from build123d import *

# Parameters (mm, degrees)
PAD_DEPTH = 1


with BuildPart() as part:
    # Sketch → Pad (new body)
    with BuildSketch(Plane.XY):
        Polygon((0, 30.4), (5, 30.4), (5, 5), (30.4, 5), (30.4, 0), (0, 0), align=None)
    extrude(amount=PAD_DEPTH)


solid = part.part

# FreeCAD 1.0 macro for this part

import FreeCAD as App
import Part
import Sketcher

V = App.Vector


def add_polygon(sketch, points):
    """Adds a closed chain of lines whose ends are joined by coincident constraints."""
    first, n = sketch.GeometryCount, len(points)
    for a, b in zip(points, points[1:] + points[:1]):
        sketch.addGeometry(Part.LineSegment(App.Vector(*a, 0), App.Vector(*b, 0)), False)
    for i in range(n):
        sketch.addConstraint(Sketcher.Constraint("Coincident", first + i, 2, first + (i + 1) % n, 1))

doc = App.newDocument("Part")
body = doc.addObject("PartDesign::Body", "Body")

# Sketch on XY plane
sketch1 = doc.addObject("Sketcher::SketchObject", "Sketch")
body.addObject(sketch1)
sketch1.AttachmentSupport = (doc.XY_Plane, [""])
sketch1.MapMode = "FlatFace"
add_polygon(sketch1, [(5, 30.4), (0, 30.4), (0, 0), (30.4, 0), (30.4, 5), (5, 5)])  # lines 0-5
sketch1.addConstraint([
    Sketcher.Constraint("Horizontal", 0),
    Sketcher.Constraint("Vertical", 1),
    Sketcher.Constraint("Horizontal", 2),
    Sketcher.Constraint("Vertical", 3),
    Sketcher.Constraint("Horizontal", 4),
    Sketcher.Constraint("Vertical", 5),
    Sketcher.Constraint("Coincident", 1, 2, -1, 1),
    Sketcher.Constraint("Equal", 2, 1),
    Sketcher.Constraint("Equal", 0, 3),
    Sketcher.Constraint("DistanceX", 0, 2, 0, 1, 5.0),
    Sketcher.Constraint("DistanceX", 2, 1, 2, 2, 30.4),
])
pad1 = doc.addObject("PartDesign::Pad", "Pad")
body.addObject(pad1)
pad1.Profile = sketch1
pad1.Length = 1

doc.recompute()
